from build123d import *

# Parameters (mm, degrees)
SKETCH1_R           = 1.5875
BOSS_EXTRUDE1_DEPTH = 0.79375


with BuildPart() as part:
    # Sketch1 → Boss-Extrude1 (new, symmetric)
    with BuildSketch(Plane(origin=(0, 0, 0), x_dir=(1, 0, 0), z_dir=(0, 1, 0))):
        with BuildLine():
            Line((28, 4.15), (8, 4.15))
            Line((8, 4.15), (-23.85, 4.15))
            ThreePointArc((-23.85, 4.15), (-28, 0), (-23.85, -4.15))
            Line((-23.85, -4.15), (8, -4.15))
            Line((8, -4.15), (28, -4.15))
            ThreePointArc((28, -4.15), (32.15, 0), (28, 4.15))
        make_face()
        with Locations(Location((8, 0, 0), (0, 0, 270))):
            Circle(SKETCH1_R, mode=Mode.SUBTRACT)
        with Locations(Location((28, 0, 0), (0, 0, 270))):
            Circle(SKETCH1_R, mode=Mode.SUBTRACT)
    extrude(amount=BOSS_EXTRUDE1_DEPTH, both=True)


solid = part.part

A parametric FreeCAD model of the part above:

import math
import FreeCAD as App
import Part
import Sketcher
from FreeCAD import Vector
Q = App.Units.Quantity

doc = App.newDocument("Part")
params = doc.addObject("Spreadsheet::Sheet", "Params")
for row, (alias, value) in enumerate([
    ("sketch1_diameter", "0.125 in"),
    ("pad1_length", "0.0625 in"),
], start=1):
    params.set(f"A{row}", alias)
    params.set(f"B{row}", "=" + value)
    params.setAlias(f"B{row}", alias)

body = doc.addObject("PartDesign::Body", "Body")

# Sketch on XZ plane
sketch1 = body.newObject("Sketcher::SketchObject", "Sketch")
sketch1.AttachmentSupport = (doc.getObject("XZ_Plane"), [""])
sketch1.MapMode = "FlatFace"
sketch1.addGeometry([
    Part.LineSegment(Vector(28, -4.15, 0), Vector(-23.85, -4.15, 0)),  # 0
    Part.ArcOfCircle(Part.Circle(Vector(-23.85, 0, 0), Vector(0, 0, 1), 4.15), math.radians(90), math.radians(270)),  # 1
    Part.LineSegment(Vector(-23.85, 4.15, 0), Vector(28, 4.15, 0)),  # 2
    Part.ArcOfCircle(Part.Circle(Vector(28, 0, 0), Vector(0, 0, 1), 4.15), math.radians(-90), math.radians(90)),  # 3
    Part.Circle(Vector(8, 0, 0), Vector(0, 0, 1), 1.5875),  # 4
    Part.Circle(Vector(28, 0, 0), Vector(0, 0, 1), 1.5875),  # 5
], False)
sketch1.addConstraint([
    Sketcher.Constraint("Tangent", 0, 2, 1, 2),
    Sketcher.Constraint("Tangent", 1, 1, 2, 1),
    Sketcher.Constraint("Tangent", 2, 2, 3, 2),
    Sketcher.Constraint("Tangent", 3, 1, 0, 1),
    Sketcher.Constraint("Horizontal", 0),
    Sketcher.Constraint("Horizontal", 2),
    Sketcher.Constraint("Coincident", 5, 3, 3, 3),
    Sketcher.Constraint("Equal", 4, 5),
    Sketcher.Constraint("PointOnObject", 1, 3, -1),
    Sketcher.Constraint("PointOnObject", 4, 3, -1),
    Sketcher.Constraint("Diameter", 4, Q("0.125 in")),
    Sketcher.Constraint("Radius", 1, Q("4.15 mm")),
    Sketcher.Constraint("DistanceX", 0, 2, 0, 1, Q("51.85 mm")),
    Sketcher.Constraint("DistanceX", 1, 3, -1, 1, Q("23.85 mm")),
    Sketcher.Constraint("DistanceX", -1, 1, 4, 3, Q("8 mm")),
])
sketch1.setExpression("Constraints[10]", "Params.sketch1_diameter")
pad1 = body.newObject("PartDesign::Pad", "Pad")
pad1.Profile = sketch1
pad1.setExpression("Length", "Params.pad1_length")
pad1.Midplane = True

doc.recompute()
